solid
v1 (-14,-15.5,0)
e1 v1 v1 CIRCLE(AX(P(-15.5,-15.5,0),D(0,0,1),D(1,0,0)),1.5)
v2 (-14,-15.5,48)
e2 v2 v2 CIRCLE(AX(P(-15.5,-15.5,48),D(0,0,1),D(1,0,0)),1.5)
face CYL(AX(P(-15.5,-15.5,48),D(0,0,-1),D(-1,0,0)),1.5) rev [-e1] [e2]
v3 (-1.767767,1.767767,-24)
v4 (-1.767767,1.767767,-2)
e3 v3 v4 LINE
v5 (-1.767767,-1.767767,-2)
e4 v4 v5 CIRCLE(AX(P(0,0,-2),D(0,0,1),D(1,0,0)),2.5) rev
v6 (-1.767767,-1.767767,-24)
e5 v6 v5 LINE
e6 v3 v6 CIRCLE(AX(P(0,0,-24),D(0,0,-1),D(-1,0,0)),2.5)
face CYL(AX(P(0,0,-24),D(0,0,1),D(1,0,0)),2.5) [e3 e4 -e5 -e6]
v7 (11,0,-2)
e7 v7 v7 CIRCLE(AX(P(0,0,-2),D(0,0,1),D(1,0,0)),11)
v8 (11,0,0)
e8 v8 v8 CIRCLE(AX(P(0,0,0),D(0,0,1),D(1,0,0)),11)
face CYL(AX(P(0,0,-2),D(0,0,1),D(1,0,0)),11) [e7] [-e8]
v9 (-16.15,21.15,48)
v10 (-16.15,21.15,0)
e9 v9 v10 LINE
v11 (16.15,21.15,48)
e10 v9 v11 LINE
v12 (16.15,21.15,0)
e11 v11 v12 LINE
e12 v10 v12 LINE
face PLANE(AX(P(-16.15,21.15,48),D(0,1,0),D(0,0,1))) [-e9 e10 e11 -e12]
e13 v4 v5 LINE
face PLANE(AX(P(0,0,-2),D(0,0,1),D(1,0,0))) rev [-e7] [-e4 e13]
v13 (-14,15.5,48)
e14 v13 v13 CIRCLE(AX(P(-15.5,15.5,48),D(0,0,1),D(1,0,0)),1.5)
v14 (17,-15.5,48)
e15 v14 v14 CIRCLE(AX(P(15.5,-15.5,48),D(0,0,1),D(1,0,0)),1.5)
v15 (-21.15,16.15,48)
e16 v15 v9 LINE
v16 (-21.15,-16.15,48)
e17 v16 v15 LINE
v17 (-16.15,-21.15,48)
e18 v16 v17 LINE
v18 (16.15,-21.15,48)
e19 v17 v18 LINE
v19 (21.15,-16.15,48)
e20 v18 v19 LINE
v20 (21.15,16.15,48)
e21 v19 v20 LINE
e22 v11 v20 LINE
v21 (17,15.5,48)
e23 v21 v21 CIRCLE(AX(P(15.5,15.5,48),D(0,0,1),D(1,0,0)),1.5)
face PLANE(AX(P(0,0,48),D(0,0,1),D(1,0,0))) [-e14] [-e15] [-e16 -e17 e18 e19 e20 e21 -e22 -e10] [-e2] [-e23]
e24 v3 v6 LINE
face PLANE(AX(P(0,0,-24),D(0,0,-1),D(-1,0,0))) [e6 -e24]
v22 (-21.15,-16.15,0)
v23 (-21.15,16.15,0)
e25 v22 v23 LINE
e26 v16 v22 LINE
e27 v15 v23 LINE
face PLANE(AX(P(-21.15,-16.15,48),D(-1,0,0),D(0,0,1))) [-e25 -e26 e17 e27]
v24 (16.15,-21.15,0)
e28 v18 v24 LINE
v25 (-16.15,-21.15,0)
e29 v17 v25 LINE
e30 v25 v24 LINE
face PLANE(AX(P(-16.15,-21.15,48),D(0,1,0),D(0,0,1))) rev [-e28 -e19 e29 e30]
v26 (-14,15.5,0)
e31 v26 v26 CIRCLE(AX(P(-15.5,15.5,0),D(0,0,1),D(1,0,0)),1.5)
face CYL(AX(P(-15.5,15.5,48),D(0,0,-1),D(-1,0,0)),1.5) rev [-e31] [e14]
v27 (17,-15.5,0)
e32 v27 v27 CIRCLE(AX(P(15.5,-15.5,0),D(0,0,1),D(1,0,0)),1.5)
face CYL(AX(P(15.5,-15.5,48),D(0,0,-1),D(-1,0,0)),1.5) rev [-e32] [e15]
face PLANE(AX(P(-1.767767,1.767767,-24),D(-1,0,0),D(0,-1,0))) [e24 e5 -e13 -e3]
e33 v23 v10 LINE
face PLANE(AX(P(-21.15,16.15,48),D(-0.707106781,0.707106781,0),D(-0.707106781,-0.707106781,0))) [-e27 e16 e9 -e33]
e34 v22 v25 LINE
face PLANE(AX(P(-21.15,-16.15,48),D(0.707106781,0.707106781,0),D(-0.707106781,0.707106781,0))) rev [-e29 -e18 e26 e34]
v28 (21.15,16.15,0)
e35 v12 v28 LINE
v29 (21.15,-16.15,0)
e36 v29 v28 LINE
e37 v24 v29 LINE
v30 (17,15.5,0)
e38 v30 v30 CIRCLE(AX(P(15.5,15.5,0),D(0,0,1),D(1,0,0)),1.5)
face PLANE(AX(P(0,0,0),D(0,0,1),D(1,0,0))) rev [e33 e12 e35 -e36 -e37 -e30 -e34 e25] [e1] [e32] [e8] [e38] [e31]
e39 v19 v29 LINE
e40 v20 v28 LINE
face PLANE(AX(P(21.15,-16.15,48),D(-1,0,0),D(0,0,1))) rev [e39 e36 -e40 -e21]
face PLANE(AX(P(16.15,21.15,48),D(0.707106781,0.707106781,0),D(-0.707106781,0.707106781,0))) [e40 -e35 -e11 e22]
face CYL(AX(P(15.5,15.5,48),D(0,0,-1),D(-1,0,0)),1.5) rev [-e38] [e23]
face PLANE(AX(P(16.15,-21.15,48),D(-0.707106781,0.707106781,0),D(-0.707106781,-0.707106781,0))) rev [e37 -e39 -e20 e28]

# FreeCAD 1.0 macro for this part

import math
import FreeCAD as App
import Part
import Sketcher
from FreeCAD import Vector
Q = App.Units.Quantity

doc = App.newDocument("Part")
body = doc.addObject("PartDesign::Body", "Body")

# Sketch on XY plane
sketch1 = body.newObject("Sketcher::SketchObject", "Sketch")
sketch1.AttachmentSupport = (doc.getObject("XY_Plane"), [""])
sketch1.MapMode = "FlatFace"
sketch1.addGeometry([
    Part.LineSegment(Vector(-16.15, 21.15, 0), Vector(-21.15, 16.15, 0)),  # 0
    Part.LineSegment(Vector(-21.15, 16.15, 0), Vector(-21.15, -16.15, 0)),  # 1
    Part.LineSegment(Vector(-21.15, -16.15, 0), Vector(-16.15, -21.15, 0)),  # 2
    Part.LineSegment(Vector(-16.15, -21.15, 0), Vector(16.15, -21.15, 0)),  # 3
    Part.LineSegment(Vector(16.15, -21.15, 0), Vector(21.15, -16.15, 0)),  # 4
    Part.LineSegment(Vector(21.15, -16.15, 0), Vector(21.15, 16.15, 0)),  # 5
    Part.LineSegment(Vector(21.15, 16.15, 0), Vector(16.15, 21.15, 0)),  # 6
    Part.LineSegment(Vector(16.15, 21.15, 0), Vector(-16.15, 21.15, 0)),  # 7
    Part.Circle(Vector(15.5, -15.5, 0), Vector(0, 0, 1), 1.5),  # 8
    Part.Circle(Vector(-15.5, -15.5, 0), Vector(0, 0, 1), 1.5),  # 9
    Part.Circle(Vector(15.5, 15.5, 0), Vector(0, 0, 1), 1.5),  # 10
    Part.Circle(Vector(-15.5, 15.5, 0), Vector(0, 0, 1), 1.5),  # 11
], False)
sketch1.addConstraint([
    Sketcher.Constraint("Coincident", 0, 2, 1, 1),
    Sketcher.Constraint("Coincident", 1, 2, 2, 1),
    Sketcher.Constraint("Coincident", 2, 2, 3, 1),
    Sketcher.Constraint("Coincident", 3, 2, 4, 1),
    Sketcher.Constraint("Coincident", 4, 2, 5, 1),
    Sketcher.Constraint("Coincident", 5, 2, 6, 1),
    Sketcher.Constraint("Coincident", 6, 2, 7, 1),
    Sketcher.Constraint("Coincident", 7, 2, 0, 1),
    Sketcher.Constraint("Vertical", 1),
    Sketcher.Constraint("Horizontal", 3),
    Sketcher.Constraint("Vertical", 5),
    Sketcher.Constraint("Horizontal", 7),
    Sketcher.Constraint("Equal", 8, 9),
    Sketcher.Constraint("Equal", 9, 10),
    Sketcher.Constraint("Equal", 10, 11),
    Sketcher.Constraint("Symmetric", 9, 3, 10, 3, -1, 1),
    Sketcher.Constraint("Symmetric", 8, 3, 11, 3, -1, 1),
    Sketcher.Constraint("Symmetric", 0, 2, 4, 2, -1, 1),
    Sketcher.Constraint("Symmetric", 2, 2, 6, 2, -1, 1),
    Sketcher.Constraint("Symmetric", 8, 3, 9, 3, -2),
    Sketcher.Constraint("Perpendicular", 0, 2),
    Sketcher.Constraint("Perpendicular", 2, 4),
    Sketcher.Constraint("Perpendicular", 4, 6),
    Sketcher.Constraint("Horizontal", 1, 2, 4, 2),
    Sketcher.Constraint("Vertical", 3, 2, 6, 2),
    Sketcher.Constraint("Equal", 7, 1),
    Sketcher.Constraint("Diameter", 8, Q("3 mm")),
    Sketcher.Constraint("DistanceX", 3, 1, 3, 2, Q("32.3 mm")),
    Sketcher.Constraint("DistanceX", 9, 3, 8, 3, Q("31 mm")),
    Sketcher.Constraint("DistanceY", 8, 3, 10, 3, Q("31 mm")),
    Sketcher.Constraint("DistanceX", 1, 2, 2, 2, Q("5 mm")),
])
pad1 = body.newObject("PartDesign::Pad", "Pad")
pad1.Profile = sketch1
pad1.Length = 48

# Sketch on XY plane
sketch2 = body.newObject("Sketcher::SketchObject", "Sketch001")
sketch2.AttachmentSupport = (doc.getObject("XY_Plane"), [""])
sketch2.MapMode = "FlatFace"
sketch2.addGeometry(Part.Circle(Vector(0, 0, 0), Vector(0, 0, 1), 11), False)
sketch2.addConstraint([
    Sketcher.Constraint("Coincident", 0, 3, -1, 1),
    Sketcher.Constraint("Diameter", 0, Q("22 mm")),
])
pad2 = body.newObject("PartDesign::Pad", "Pad001")
pad2.Profile = sketch2
pad2.Length = 2
pad2.Reversed = True

# Sketch on XY plane
sketch3 = body.newObject("Sketcher::SketchObject", "Sketch002")
sketch3.AttachmentSupport = (doc.getObject("XY_Plane"), [""])
sketch3.MapMode = "FlatFace"
sketch3.addGeometry([
    Part.LineSegment(Vector(-1.767767, 1.767767, 0), Vector(-1.767767, -1.767767, 0)),
    Part.ArcOfCircle(Part.Circle(Vector(0, 0, 0), Vector(0, 0, 1), 2.5), math.radians(-135), math.radians(135)),
], False)
sketch3.addConstraint([
    Sketcher.Constraint("Coincident", 0, 1, 1, 2),
    Sketcher.Constraint("Coincident", 1, 1, 0, 2),
    Sketcher.Constraint("Vertical", 0),
    Sketcher.Constraint("Coincident", 1, 3, -1, 1),
    Sketcher.Constraint("Radius", 1, Q("2.5 mm")),
    Sketcher.Constraint("DistanceY", 0, 2, 0, 1, Q("3.535534 mm")),
])
pad3 = body.newObject("PartDesign::Pad", "Pad002")
pad3.Profile = sketch3
pad3.Length = 24
pad3.Reversed = True

doc.recompute()
